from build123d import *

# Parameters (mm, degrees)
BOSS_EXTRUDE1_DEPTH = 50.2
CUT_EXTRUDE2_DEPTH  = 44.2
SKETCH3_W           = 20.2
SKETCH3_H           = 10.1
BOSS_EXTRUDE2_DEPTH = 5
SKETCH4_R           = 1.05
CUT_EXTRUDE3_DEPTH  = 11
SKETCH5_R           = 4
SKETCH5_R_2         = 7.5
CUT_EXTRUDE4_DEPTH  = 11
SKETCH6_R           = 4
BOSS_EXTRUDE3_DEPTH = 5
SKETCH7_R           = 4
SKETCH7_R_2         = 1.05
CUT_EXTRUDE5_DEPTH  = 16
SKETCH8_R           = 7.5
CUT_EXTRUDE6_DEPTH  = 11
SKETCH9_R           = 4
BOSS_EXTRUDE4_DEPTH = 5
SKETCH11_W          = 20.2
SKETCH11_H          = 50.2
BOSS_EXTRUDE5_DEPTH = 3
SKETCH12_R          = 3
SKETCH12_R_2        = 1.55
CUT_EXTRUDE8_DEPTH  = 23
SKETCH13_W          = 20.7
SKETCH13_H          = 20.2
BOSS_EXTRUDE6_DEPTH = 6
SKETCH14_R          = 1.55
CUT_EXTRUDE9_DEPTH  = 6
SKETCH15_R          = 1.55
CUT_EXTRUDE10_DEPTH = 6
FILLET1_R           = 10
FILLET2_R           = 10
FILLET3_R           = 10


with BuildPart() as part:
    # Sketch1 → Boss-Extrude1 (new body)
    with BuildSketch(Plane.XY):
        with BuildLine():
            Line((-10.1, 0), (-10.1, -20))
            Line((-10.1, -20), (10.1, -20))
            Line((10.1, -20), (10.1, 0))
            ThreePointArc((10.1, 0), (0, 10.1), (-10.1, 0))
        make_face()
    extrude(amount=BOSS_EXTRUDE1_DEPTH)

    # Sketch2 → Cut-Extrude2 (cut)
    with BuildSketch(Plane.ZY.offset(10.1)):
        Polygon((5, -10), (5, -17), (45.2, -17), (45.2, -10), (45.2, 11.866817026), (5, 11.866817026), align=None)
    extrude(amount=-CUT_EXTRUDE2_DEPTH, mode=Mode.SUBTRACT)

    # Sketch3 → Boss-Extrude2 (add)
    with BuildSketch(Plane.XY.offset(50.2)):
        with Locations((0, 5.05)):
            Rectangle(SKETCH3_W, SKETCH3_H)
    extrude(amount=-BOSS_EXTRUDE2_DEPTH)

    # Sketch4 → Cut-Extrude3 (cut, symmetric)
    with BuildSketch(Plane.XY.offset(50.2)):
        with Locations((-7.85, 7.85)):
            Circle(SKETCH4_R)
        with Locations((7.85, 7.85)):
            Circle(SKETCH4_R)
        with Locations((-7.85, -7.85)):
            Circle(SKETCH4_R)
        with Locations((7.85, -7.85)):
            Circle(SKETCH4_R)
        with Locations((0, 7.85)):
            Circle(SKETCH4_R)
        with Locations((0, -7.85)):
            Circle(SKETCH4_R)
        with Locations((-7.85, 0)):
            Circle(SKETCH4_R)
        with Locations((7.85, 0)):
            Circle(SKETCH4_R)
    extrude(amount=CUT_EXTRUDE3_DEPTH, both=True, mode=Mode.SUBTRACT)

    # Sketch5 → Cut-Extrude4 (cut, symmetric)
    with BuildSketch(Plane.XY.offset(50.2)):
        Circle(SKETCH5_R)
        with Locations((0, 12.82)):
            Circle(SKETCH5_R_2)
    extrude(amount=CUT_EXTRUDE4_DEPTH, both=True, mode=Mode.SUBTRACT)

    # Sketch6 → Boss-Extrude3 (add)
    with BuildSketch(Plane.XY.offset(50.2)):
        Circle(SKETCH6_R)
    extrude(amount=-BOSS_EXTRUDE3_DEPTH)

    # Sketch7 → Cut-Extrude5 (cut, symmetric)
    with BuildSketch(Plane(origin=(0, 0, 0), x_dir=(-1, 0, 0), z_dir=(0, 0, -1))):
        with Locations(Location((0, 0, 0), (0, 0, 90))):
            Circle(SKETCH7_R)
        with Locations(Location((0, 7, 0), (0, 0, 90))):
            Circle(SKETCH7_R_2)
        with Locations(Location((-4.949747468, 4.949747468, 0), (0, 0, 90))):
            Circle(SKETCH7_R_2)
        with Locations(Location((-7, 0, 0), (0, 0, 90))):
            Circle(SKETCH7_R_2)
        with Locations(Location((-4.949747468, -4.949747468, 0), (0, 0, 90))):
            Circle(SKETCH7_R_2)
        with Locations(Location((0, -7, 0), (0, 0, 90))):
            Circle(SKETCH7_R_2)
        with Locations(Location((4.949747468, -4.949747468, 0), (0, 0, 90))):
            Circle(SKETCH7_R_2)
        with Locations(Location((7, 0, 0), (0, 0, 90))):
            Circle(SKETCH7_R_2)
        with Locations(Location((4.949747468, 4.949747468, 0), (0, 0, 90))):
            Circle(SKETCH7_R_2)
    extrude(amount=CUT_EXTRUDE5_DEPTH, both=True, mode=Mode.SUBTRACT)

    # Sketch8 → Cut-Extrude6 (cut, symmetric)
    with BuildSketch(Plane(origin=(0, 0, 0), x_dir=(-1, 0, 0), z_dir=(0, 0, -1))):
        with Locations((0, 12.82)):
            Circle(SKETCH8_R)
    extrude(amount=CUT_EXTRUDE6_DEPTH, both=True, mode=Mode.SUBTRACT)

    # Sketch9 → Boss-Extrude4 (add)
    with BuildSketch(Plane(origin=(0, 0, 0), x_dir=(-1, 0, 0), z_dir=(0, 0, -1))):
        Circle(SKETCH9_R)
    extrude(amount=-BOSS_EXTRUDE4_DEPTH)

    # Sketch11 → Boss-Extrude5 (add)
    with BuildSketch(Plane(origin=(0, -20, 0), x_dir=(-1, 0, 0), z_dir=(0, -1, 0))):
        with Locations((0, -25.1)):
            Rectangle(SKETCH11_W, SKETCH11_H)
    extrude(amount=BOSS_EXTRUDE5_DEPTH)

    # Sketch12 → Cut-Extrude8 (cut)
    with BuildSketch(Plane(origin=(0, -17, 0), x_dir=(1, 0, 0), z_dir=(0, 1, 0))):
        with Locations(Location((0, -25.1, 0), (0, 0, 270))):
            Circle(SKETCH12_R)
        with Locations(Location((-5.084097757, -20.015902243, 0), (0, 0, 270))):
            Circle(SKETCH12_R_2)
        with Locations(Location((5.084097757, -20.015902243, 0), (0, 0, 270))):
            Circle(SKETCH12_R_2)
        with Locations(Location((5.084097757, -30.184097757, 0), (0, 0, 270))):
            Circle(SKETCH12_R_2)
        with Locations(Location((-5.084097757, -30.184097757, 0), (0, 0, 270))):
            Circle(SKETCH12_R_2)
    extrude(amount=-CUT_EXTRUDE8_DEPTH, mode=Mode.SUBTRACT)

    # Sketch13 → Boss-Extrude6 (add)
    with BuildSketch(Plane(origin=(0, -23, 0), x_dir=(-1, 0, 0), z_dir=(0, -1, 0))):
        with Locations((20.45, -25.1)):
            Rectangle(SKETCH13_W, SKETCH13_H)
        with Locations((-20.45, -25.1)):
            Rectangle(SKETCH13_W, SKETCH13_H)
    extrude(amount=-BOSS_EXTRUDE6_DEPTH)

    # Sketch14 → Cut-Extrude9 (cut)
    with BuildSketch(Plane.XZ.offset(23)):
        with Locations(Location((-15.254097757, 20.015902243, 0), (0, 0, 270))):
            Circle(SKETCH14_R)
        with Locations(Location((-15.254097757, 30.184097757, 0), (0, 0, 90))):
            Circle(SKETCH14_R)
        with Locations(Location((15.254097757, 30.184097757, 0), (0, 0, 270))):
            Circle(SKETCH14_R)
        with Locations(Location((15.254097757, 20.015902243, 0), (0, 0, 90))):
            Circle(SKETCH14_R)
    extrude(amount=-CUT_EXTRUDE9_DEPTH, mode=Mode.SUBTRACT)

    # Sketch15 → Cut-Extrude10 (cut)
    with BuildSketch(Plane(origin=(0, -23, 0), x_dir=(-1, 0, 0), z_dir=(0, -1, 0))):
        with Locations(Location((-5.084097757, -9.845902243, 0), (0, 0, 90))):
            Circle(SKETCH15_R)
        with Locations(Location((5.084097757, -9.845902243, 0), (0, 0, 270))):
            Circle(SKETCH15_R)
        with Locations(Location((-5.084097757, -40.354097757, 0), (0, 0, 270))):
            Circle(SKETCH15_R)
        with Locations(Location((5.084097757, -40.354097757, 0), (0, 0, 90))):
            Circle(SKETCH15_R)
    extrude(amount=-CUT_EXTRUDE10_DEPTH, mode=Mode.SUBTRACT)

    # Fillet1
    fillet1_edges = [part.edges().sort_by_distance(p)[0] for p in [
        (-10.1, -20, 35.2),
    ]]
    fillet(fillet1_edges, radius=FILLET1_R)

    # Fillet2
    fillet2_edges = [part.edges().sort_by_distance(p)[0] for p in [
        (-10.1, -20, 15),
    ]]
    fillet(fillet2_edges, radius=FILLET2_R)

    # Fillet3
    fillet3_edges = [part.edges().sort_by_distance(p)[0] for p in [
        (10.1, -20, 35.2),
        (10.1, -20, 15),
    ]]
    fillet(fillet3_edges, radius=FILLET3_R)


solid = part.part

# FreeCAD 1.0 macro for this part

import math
import FreeCAD as App
import Part
import Sketcher
from FreeCAD import Vector


def edges_at(feature, points):
    """Names of the edges that pass closest to the given points."""
    edges = feature.Shape.Edges
    near = lambda p: min(range(len(edges)), key=lambda i: edges[i].distToShape(Part.Vertex(*p))[0])
    return sorted({f"Edge{near(p) + 1}" for p in points})

doc = App.newDocument("Part")
body = doc.addObject("PartDesign::Body", "Body")

# Sketch on XY plane
sketch1 = doc.addObject("Sketcher::SketchObject", "Sketch")
body.addObject(sketch1)
sketch1.AttachmentSupport = (doc.XY_Plane, [""])
sketch1.MapMode = "FlatFace"
sketch1.addGeometry([
    Part.LineSegment(Vector(-10, 0, 0), Vector(-10, -20, 0)),
    Part.LineSegment(Vector(-10, -20, 0), Vector(10, -20, 0)),
    Part.LineSegment(Vector(10, -20, 0), Vector(10, 0, 0)),
    Part.ArcOfCircle(Part.Circle(Vector(0, 0, 0), Vector(0, 0, 1), 10), math.radians(0), math.radians(180)),
], False)
sketch1.addConstraint([
    Sketcher.Constraint("Coincident", 0, 2, 1, 1),
    Sketcher.Constraint("Coincident", 1, 2, 2, 1),
    Sketcher.Constraint("Tangent", 2, 2, 3, 1),
    Sketcher.Constraint("Tangent", 3, 2, 0, 1),
    Sketcher.Constraint("Vertical", 0),
    Sketcher.Constraint("Horizontal", 1),
    Sketcher.Constraint("Vertical", 2),
    Sketcher.Constraint("Coincident", 3, 3, -1, 1),
    Sketcher.Constraint("Radius", 3, 10.1),
    Sketcher.Constraint("DistanceY", 0, 2, 0, 1, 20.0),
])
pad1 = doc.addObject("PartDesign::Pad", "Pad")
body.addObject(pad1)
pad1.Profile = sketch1
pad1.Length = 50.2

# Sketch on YZ plane
sketch2 = doc.addObject("Sketcher::SketchObject", "Sketch001")
body.addObject(sketch2)
sketch2.AttachmentSupport = (doc.YZ_Plane, [""])
sketch2.MapMode = "FlatFace"
sketch2.AttachmentOffset = App.Placement(Vector(0, 0, -10.1), App.Rotation())
sketch2.addGeometry([
    Part.LineSegment(Vector(-17, 5, 0), Vector(-17, 45, 0)),
    Part.LineSegment(Vector(-17, 45, 0), Vector(12, 45, 0)),
    Part.LineSegment(Vector(12, 45, 0), Vector(12, 5, 0)),
    Part.LineSegment(Vector(12, 5, 0), Vector(-17, 5, 0)),
], False)
sketch2.addConstraint([
    Sketcher.Constraint("Coincident", 0, 2, 1, 1),
    Sketcher.Constraint("Coincident", 1, 2, 2, 1),
    Sketcher.Constraint("Coincident", 2, 2, 3, 1),
    Sketcher.Constraint("Coincident", 3, 2, 0, 1),
    Sketcher.Constraint("Vertical", 0),
    Sketcher.Constraint("Horizontal", 1),
    Sketcher.Constraint("Vertical", 2),
    Sketcher.Constraint("Horizontal", 3),
    Sketcher.Constraint("DistanceY", 0, 1, 0, 2, 40.2),
    Sketcher.Constraint("DistanceX", 0, 2, -1, 1, 17.0),
    Sketcher.Constraint("DistanceY", -1, 1, 2, 2, 5.0),
    Sketcher.Constraint("DistanceX", 1, 1, 1, 2, 28.866817),
])
pocket1 = doc.addObject("PartDesign::Pocket", "Pocket")
body.addObject(pocket1)
pocket1.Profile = sketch2
pocket1.Length = 44.2
pocket1.Reversed = True

# Sketch on XY plane
sketch3 = doc.addObject("Sketcher::SketchObject", "Sketch002")
body.addObject(sketch3)
sketch3.AttachmentSupport = (doc.XY_Plane, [""])
sketch3.MapMode = "FlatFace"
sketch3.AttachmentOffset = App.Placement(Vector(0, 0, 50.2), App.Rotation())
sketch3.addGeometry([
    Part.LineSegment(Vector(-10, 10, 0), Vector(-10, 0, 0)),
    Part.LineSegment(Vector(-10, 0, 0), Vector(10, 0, 0)),
    Part.LineSegment(Vector(10, 0, 0), Vector(10, 10, 0)),
    Part.LineSegment(Vector(10, 10, 0), Vector(-10, 10, 0)),
], False)
sketch3.addConstraint([
    Sketcher.Constraint("Coincident", 0, 2, 1, 1),
    Sketcher.Constraint("Coincident", 1, 2, 2, 1),
    Sketcher.Constraint("Coincident", 2, 2, 3, 1),
    Sketcher.Constraint("Coincident", 3, 2, 0, 1),
    Sketcher.Constraint("Vertical", 0),
    Sketcher.Constraint("Horizontal", 1),
    Sketcher.Constraint("Vertical", 2),
    Sketcher.Constraint("Horizontal", 3),
    Sketcher.Constraint("Symmetric", 0, 2, 1, 2, -1, 1),
    Sketcher.Constraint("DistanceX", 1, 1, 1, 2, 20.2),
    Sketcher.Constraint("DistanceY", 0, 2, 0, 1, 10.1),
])
pad2 = doc.addObject("PartDesign::Pad", "Pad001")
body.addObject(pad2)
pad2.Profile = sketch3
pad2.Length = 5
pad2.Reversed = True

# Sketch on XY plane
sketch4 = doc.addObject("Sketcher::SketchObject", "Sketch003")
body.addObject(sketch4)
sketch4.AttachmentSupport = (doc.XY_Plane, [""])
sketch4.MapMode = "FlatFace"
sketch4.AttachmentOffset = App.Placement(Vector(0, 0, 50.2), App.Rotation())
sketch4.addGeometry([
    Part.Circle(Vector(-7.8, 7.8, 0), Vector(0, 0, 1), 1.1),  # 0
    Part.Circle(Vector(7.8, 7.8, 0), Vector(0, 0, 1), 1.1),  # 1
    Part.Circle(Vector(-7.8, -7.8, 0), Vector(0, 0, 1), 1.1),  # 2
    Part.Circle(Vector(7.8, -7.8, 0), Vector(0, 0, 1), 1.1),  # 3
    Part.Circle(Vector(0, 7.8, 0), Vector(0, 0, 1), 1.1),  # 4
    Part.Circle(Vector(0, -7.8, 0), Vector(0, 0, 1), 1.1),  # 5
    Part.Circle(Vector(-7.8, 0, 0), Vector(0, 0, 1), 1.1),  # 6
    Part.Circle(Vector(7.8, 0, 0), Vector(0, 0, 1), 1.1),  # 7
], False)
sketch4.addConstraint([
    Sketcher.Constraint("Equal", 0, 1),
    Sketcher.Constraint("Equal", 1, 2),
    Sketcher.Constraint("Equal", 2, 3),
    Sketcher.Constraint("Equal", 3, 4),
    Sketcher.Constraint("Equal", 4, 5),
    Sketcher.Constraint("Equal", 5, 6),
    Sketcher.Constraint("Equal", 6, 7),
    Sketcher.Constraint("Symmetric", 1, 3, 2, 3, -1, 1),
    Sketcher.Constraint("Symmetric", 0, 3, 3, 3, -1, 1),
    Sketcher.Constraint("Symmetric", 4, 3, 5, 3, -1, 1),
    Sketcher.Constraint("Symmetric", 6, 3, 7, 3, -1, 1),
    Sketcher.Constraint("Symmetric", 0, 3, 1, 3, -2),
    Sketcher.Constraint("PointOnObject", 4, 3, -2),
    Sketcher.Constraint("PointOnObject", 6, 3, -1),
    Sketcher.Constraint("Horizontal", 1, 3, 4, 3),
    Sketcher.Constraint("Vertical", 2, 3, 6, 3),
    Sketcher.Constraint("Diameter", 0, 2.1),
    Sketcher.Constraint("DistanceX", 0, 3, 1, 3, 15.7),
    Sketcher.Constraint("DistanceY", 2, 3, 0, 3, 15.7),
])
pocket2 = doc.addObject("PartDesign::Pocket", "Pocket001")
body.addObject(pocket2)
pocket2.Profile = sketch4
pocket2.Length = 22
pocket2.Midplane = True

# Sketch on XY plane
sketch5 = doc.addObject("Sketcher::SketchObject", "Sketch004")
body.addObject(sketch5)
sketch5.AttachmentSupport = (doc.XY_Plane, [""])
sketch5.MapMode = "FlatFace"
sketch5.AttachmentOffset = App.Placement(Vector(0, 0, 50.2), App.Rotation())
sketch5.addGeometry([
    Part.Circle(Vector(0, 0, 0), Vector(0, 0, 1), 4),
    Part.Circle(Vector(0, 12.8, 0), Vector(0, 0, 1), 7.5),
], False)
sketch5.addConstraint([
    Sketcher.Constraint("Coincident", 0, 3, -1, 1),
    Sketcher.Constraint("PointOnObject", 1, 3, -2),
    Sketcher.Constraint("Diameter", 0, 8.0),
    Sketcher.Constraint("Diameter", 1, 15.0),
    Sketcher.Constraint("DistanceY", -1, 1, 1, 3, 12.82),
])
pocket3 = doc.addObject("PartDesign::Pocket", "Pocket002")
body.addObject(pocket3)
pocket3.Profile = sketch5
pocket3.Length = 22
pocket3.Midplane = True

# Sketch on XY plane
sketch6 = doc.addObject("Sketcher::SketchObject", "Sketch005")
body.addObject(sketch6)
sketch6.AttachmentSupport = (doc.XY_Plane, [""])
sketch6.MapMode = "FlatFace"
sketch6.AttachmentOffset = App.Placement(Vector(0, 0, 50.2), App.Rotation())
sketch6.addGeometry(Part.Circle(Vector(0, 0, 0), Vector(0, 0, 1), 4), False)
sketch6.addConstraint([
    Sketcher.Constraint("Coincident", 0, 3, -1, 1),
    Sketcher.Constraint("Diameter", 0, 8.0),
])
pad3 = doc.addObject("PartDesign::Pad", "Pad002")
body.addObject(pad3)
pad3.Profile = sketch6
pad3.Length = 5
pad3.Reversed = True

# Sketch on XY plane
sketch7 = doc.addObject("Sketcher::SketchObject", "Sketch006")
body.addObject(sketch7)
sketch7.AttachmentSupport = (doc.XY_Plane, [""])
sketch7.MapMode = "FlatFace"
sketch7.addGeometry([
    Part.Circle(Vector(0, 0, 0), Vector(0, 0, 1), 4),  # 0
    Part.Circle(Vector(0, 7, 0), Vector(0, 0, 1), 1.1),  # 1
    Part.Circle(Vector(4.9, 4.9, 0), Vector(0, 0, 1), 1.1),  # 2
    Part.Circle(Vector(7, 0, 0), Vector(0, 0, 1), 1.1),  # 3
    Part.Circle(Vector(4.9, -4.9, 0), Vector(0, 0, 1), 1.1),  # 4
    Part.Circle(Vector(0, -7, 0), Vector(0, 0, 1), 1.1),  # 5
    Part.Circle(Vector(-4.9, -4.9, 0), Vector(0, 0, 1), 1.1),  # 6
    Part.Circle(Vector(-7, 0, 0), Vector(0, 0, 1), 1.1),  # 7
    Part.Circle(Vector(-4.9, 4.9, 0), Vector(0, 0, 1), 1.1),  # 8
], False)
sketch7.addConstraint([
    Sketcher.Constraint("Coincident", 0, 3, -1, 1),
    Sketcher.Constraint("Equal", 1, 2),
    Sketcher.Constraint("Equal", 2, 3),
    Sketcher.Constraint("Equal", 3, 4),
    Sketcher.Constraint("Equal", 4, 5),
    Sketcher.Constraint("Equal", 5, 6),
    Sketcher.Constraint("Equal", 6, 7),
    Sketcher.Constraint("Equal", 7, 8),
    Sketcher.Constraint("Symmetric", 1, 3, 5, 3, -1, 1),
    Sketcher.Constraint("Symmetric", 2, 3, 6, 3, -1, 1),
    Sketcher.Constraint("Symmetric", 3, 3, 7, 3, -1, 1),
    Sketcher.Constraint("Symmetric", 4, 3, 8, 3, -1, 1),
    Sketcher.Constraint("Symmetric", 4, 3, 6, 3, -2),
    Sketcher.Constraint("PointOnObject", 1, 3, -2),
    Sketcher.Constraint("PointOnObject", 3, 3, -1),
    Sketcher.Constraint("Diameter", 0, 8.0),
    Sketcher.Constraint("Diameter", 1, 2.1),
    Sketcher.Constraint("DistanceY", -1, 1, 1, 3, 7.0),
    Sketcher.Constraint("DistanceX", -1, 1, 3, 3, 7.0),
    Sketcher.Constraint("DistanceX", -1, 1, 2, 3, 4.949747),
    Sketcher.Constraint("DistanceY", -1, 1, 2, 3, 4.949747),
])
pocket4 = doc.addObject("PartDesign::Pocket", "Pocket003")
body.addObject(pocket4)
pocket4.Profile = sketch7
pocket4.Length = 32
pocket4.Midplane = True

# Sketch on XY plane
sketch8 = doc.addObject("Sketcher::SketchObject", "Sketch007")
body.addObject(sketch8)
sketch8.AttachmentSupport = (doc.XY_Plane, [""])
sketch8.MapMode = "FlatFace"
sketch8.addGeometry(Part.Circle(Vector(0, 13, 0), Vector(0, 0, 1), 8), False)
sketch8.addConstraint([
    Sketcher.Constraint("PointOnObject", 0, 3, -2),
    Sketcher.Constraint("Diameter", 0, 15.0),
    Sketcher.Constraint("DistanceY", -1, 1, 0, 3, 12.82),
])
pocket5 = doc.addObject("PartDesign::Pocket", "Pocket004")
body.addObject(pocket5)
pocket5.Profile = sketch8
pocket5.Length = 22
pocket5.Midplane = True

# Sketch on XY plane
sketch9 = doc.addObject("Sketcher::SketchObject", "Sketch008")
body.addObject(sketch9)
sketch9.AttachmentSupport = (doc.XY_Plane, [""])
sketch9.MapMode = "FlatFace"
sketch9.addGeometry(Part.Circle(Vector(0, 0, 0), Vector(0, 0, 1), 4), False)
sketch9.addConstraint([
    Sketcher.Constraint("Coincident", 0, 3, -1, 1),
    Sketcher.Constraint("Diameter", 0, 8.0),
])
pad4 = doc.addObject("PartDesign::Pad", "Pad003")
body.addObject(pad4)
pad4.Profile = sketch9
pad4.Length = 5

# Sketch on XZ plane
sketch10 = doc.addObject("Sketcher::SketchObject", "Sketch009")
body.addObject(sketch10)
sketch10.AttachmentSupport = (doc.XZ_Plane, [""])
sketch10.MapMode = "FlatFace"
sketch10.AttachmentOffset = App.Placement(Vector(0, 0, 20), App.Rotation())
sketch10.addGeometry([
    Part.LineSegment(Vector(10, 0, 0), Vector(10, 50, 0)),
    Part.LineSegment(Vector(10, 50, 0), Vector(-10, 50, 0)),
    Part.LineSegment(Vector(-10, 50, 0), Vector(-10, 0, 0)),
    Part.LineSegment(Vector(-10, 0, 0), Vector(10, 0, 0)),
], False)
sketch10.addConstraint([
    Sketcher.Constraint("Coincident", 0, 2, 1, 1),
    Sketcher.Constraint("Coincident", 1, 2, 2, 1),
    Sketcher.Constraint("Coincident", 2, 2, 3, 1),
    Sketcher.Constraint("Coincident", 3, 2, 0, 1),
    Sketcher.Constraint("Vertical", 0),
    Sketcher.Constraint("Horizontal", 1),
    Sketcher.Constraint("Vertical", 2),
    Sketcher.Constraint("Horizontal", 3),
    Sketcher.Constraint("Symmetric", 2, 2, 3, 2, -1, 1),
    Sketcher.Constraint("DistanceX", 1, 2, 1, 1, 20.2),
    Sketcher.Constraint("DistanceY", 0, 1, 0, 2, 50.2),
])
pad5 = doc.addObject("PartDesign::Pad", "Pad004")
body.addObject(pad5)
pad5.Profile = sketch10
pad5.Length = 3

# Sketch on XZ plane
sketch11 = doc.addObject("Sketcher::SketchObject", "Sketch010")
body.addObject(sketch11)
sketch11.AttachmentSupport = (doc.XZ_Plane, [""])
sketch11.MapMode = "FlatFace"
sketch11.AttachmentOffset = App.Placement(Vector(0, 0, 17), App.Rotation())
sketch11.addGeometry([
    Part.Circle(Vector(0, 25.1, 0), Vector(0, 0, 1), 3),  # 0
    Part.Circle(Vector(-5.1, 20, 0), Vector(0, 0, 1), 1.6),  # 1
    Part.Circle(Vector(5.1, 20, 0), Vector(0, 0, 1), 1.6),  # 2
    Part.Circle(Vector(5.1, 30.2, 0), Vector(0, 0, 1), 1.6),  # 3
    Part.Circle(Vector(-5.1, 30.2, 0), Vector(0, 0, 1), 1.6),  # 4
], False)
sketch11.addConstraint([
    Sketcher.Constraint("Equal", 1, 2),
    Sketcher.Constraint("Equal", 2, 3),
    Sketcher.Constraint("Equal", 3, 4),
    Sketcher.Constraint("Symmetric", 1, 3, 2, 3, -2),
    Sketcher.Constraint("Symmetric", 3, 3, 4, 3, -2),
    Sketcher.Constraint("PointOnObject", 0, 3, -2),
    Sketcher.Constraint("Vertical", 2, 3, 3, 3),
    Sketcher.Constraint("Diameter", 0, 6.0),
    Sketcher.Constraint("Diameter", 1, 3.1),
    Sketcher.Constraint("DistanceY", -1, 1, 0, 3, 25.1),
    Sketcher.Constraint("DistanceX", 1, 3, -1, 1, 5.084098),
    Sketcher.Constraint("DistanceY", -1, 1, 1, 3, 20.015902),
    Sketcher.Constraint("DistanceY", -1, 1, 3, 3, 30.184098),
])
pocket6 = doc.addObject("PartDesign::Pocket", "Pocket005")
body.addObject(pocket6)
pocket6.Profile = sketch11
pocket6.Length = 23
pocket6.Reversed = True

# Sketch on XZ plane
sketch12 = doc.addObject("Sketcher::SketchObject", "Sketch011")
body.addObject(sketch12)
sketch12.AttachmentSupport = (doc.XZ_Plane, [""])
sketch12.MapMode = "FlatFace"
sketch12.AttachmentOffset = App.Placement(Vector(0, 0, 23), App.Rotation())
sketch12.addGeometry([
    Part.LineSegment(Vector(-10, 15, 0), Vector(-10, 35, 0)),  # 0
    Part.LineSegment(Vector(-10, 35, 0), Vector(-31, 35, 0)),  # 1
    Part.LineSegment(Vector(-31, 35, 0), Vector(-31, 15, 0)),  # 2
    Part.LineSegment(Vector(-31, 15, 0), Vector(-10, 15, 0)),  # 3
    Part.LineSegment(Vector(31, 15, 0), Vector(31, 35, 0)),  # 4
    Part.LineSegment(Vector(31, 35, 0), Vector(10, 35, 0)),  # 5
    Part.LineSegment(Vector(10, 35, 0), Vector(10, 15, 0)),  # 6
    Part.LineSegment(Vector(10, 15, 0), Vector(31, 15, 0)),  # 7
], False)
sketch12.addConstraint([
    Sketcher.Constraint("Coincident", 0, 2, 1, 1),
    Sketcher.Constraint("Coincident", 1, 2, 2, 1),
    Sketcher.Constraint("Coincident", 2, 2, 3, 1),
    Sketcher.Constraint("Coincident", 3, 2, 0, 1),
    Sketcher.Constraint("Coincident", 4, 2, 5, 1),
    Sketcher.Constraint("Coincident", 5, 2, 6, 1),
    Sketcher.Constraint("Coincident", 6, 2, 7, 1),
    Sketcher.Constraint("Coincident", 7, 2, 4, 1),
    Sketcher.Constraint("Vertical", 0),
    Sketcher.Constraint("Horizontal", 1),
    Sketcher.Constraint("Vertical", 2),
    Sketcher.Constraint("Horizontal", 3),
    Sketcher.Constraint("Vertical", 4),
    Sketcher.Constraint("Horizontal", 5),
    Sketcher.Constraint("Vertical", 6),
    Sketcher.Constraint("Horizontal", 7),
    Sketcher.Constraint("Symmetric", 1, 2, 4, 2, -2),
    Sketcher.Constraint("Symmetric", 3, 2, 6, 2, -2),
    Sketcher.Constraint("DistanceX", 1, 2, 1, 1, 20.7),
    Sketcher.Constraint("DistanceY", 0, 1, 0, 2, 20.2),
    Sketcher.Constraint("DistanceY", -1, 1, 2, 2, 15.0),
    Sketcher.Constraint("DistanceX", 0, 2, -1, 1, 10.1),
])
pad6 = doc.addObject("PartDesign::Pad", "Pad005")
body.addObject(pad6)
pad6.Profile = sketch12
pad6.Length = 6
pad6.Reversed = True

# Sketch on XZ plane
sketch13 = doc.addObject("Sketcher::SketchObject", "Sketch012")
body.addObject(sketch13)
sketch13.AttachmentSupport = (doc.XZ_Plane, [""])
sketch13.MapMode = "FlatFace"
sketch13.AttachmentOffset = App.Placement(Vector(0, 0, 23), App.Rotation())
sketch13.addGeometry([
    Part.Circle(Vector(-15.3, 20, 0), Vector(0, 0, 1), 1.6),
    Part.Circle(Vector(-15.3, 30.2, 0), Vector(0, 0, 1), 1.6),
    Part.Circle(Vector(15.3, 30.2, 0), Vector(0, 0, 1), 1.6),
    Part.Circle(Vector(15.3, 20, 0), Vector(0, 0, 1), 1.6),
], False)
sketch13.addConstraint([
    Sketcher.Constraint("Equal", 0, 1),
    Sketcher.Constraint("Equal", 1, 2),
    Sketcher.Constraint("Equal", 2, 3),
    Sketcher.Constraint("Symmetric", 1, 3, 2, 3, -2),
    Sketcher.Constraint("Symmetric", 0, 3, 3, 3, -2),
    Sketcher.Constraint("Vertical", 0, 3, 1, 3),
    Sketcher.Constraint("Diameter", 0, 3.1),
    Sketcher.Constraint("DistanceX", 0, 3, -1, 1, 15.254098),
    Sketcher.Constraint("DistanceY", -1, 1, 0, 3, 20.015902),
    Sketcher.Constraint("DistanceY", -1, 1, 1, 3, 30.184098),
])
pocket7 = doc.addObject("PartDesign::Pocket", "Pocket006")
body.addObject(pocket7)
pocket7.Profile = sketch13
pocket7.Length = 6

# Sketch on XZ plane
sketch14 = doc.addObject("Sketcher::SketchObject", "Sketch013")
body.addObject(sketch14)
sketch14.AttachmentSupport = (doc.XZ_Plane, [""])
sketch14.MapMode = "FlatFace"
sketch14.AttachmentOffset = App.Placement(Vector(0, 0, 23), App.Rotation())
sketch14.addGeometry([
    Part.Circle(Vector(5.1, 9.8, 0), Vector(0, 0, 1), 1.6),
    Part.Circle(Vector(-5.1, 9.8, 0), Vector(0, 0, 1), 1.6),
    Part.Circle(Vector(5.1, 40.4, 0), Vector(0, 0, 1), 1.6),
    Part.Circle(Vector(-5.1, 40.4, 0), Vector(0, 0, 1), 1.6),
], False)
sketch14.addConstraint([
    Sketcher.Constraint("Equal", 0, 1),
    Sketcher.Constraint("Equal", 1, 2),
    Sketcher.Constraint("Equal", 2, 3),
    Sketcher.Constraint("Symmetric", 0, 3, 1, 3, -2),
    Sketcher.Constraint("Symmetric", 2, 3, 3, 3, -2),
    Sketcher.Constraint("Vertical", 0, 3, 2, 3),
    Sketcher.Constraint("Diameter", 0, 3.1),
    Sketcher.Constraint("DistanceX", -1, 1, 0, 3, 5.084098),
    Sketcher.Constraint("DistanceY", -1, 1, 0, 3, 9.845902),
    Sketcher.Constraint("DistanceY", -1, 1, 2, 3, 40.354098),
])
pocket8 = doc.addObject("PartDesign::Pocket", "Pocket007")
body.addObject(pocket8)
pocket8.Profile = sketch14
pocket8.Length = 6
doc.recompute()

fillet = doc.addObject("PartDesign::Fillet", "Fillet")
body.addObject(fillet)
fillet.Base = (pocket8, edges_at(pocket8, [(-10.1, -20, 35.2)]))
fillet.Radius = 10
doc.recompute()

fillet2 = doc.addObject("PartDesign::Fillet", "Fillet001")
body.addObject(fillet2)
fillet2.Base = (fillet, edges_at(fillet, [(-10.1, -20, 15)]))
fillet2.Radius = 10
doc.recompute()

fillet3 = doc.addObject("PartDesign::Fillet", "Fillet002")
body.addObject(fillet3)
fillet3.Base = (fillet2, edges_at(fillet2, [(10.1, -20, 35.2), (10.1, -20, 15)]))
fillet3.Radius = 10

doc.recompute()
